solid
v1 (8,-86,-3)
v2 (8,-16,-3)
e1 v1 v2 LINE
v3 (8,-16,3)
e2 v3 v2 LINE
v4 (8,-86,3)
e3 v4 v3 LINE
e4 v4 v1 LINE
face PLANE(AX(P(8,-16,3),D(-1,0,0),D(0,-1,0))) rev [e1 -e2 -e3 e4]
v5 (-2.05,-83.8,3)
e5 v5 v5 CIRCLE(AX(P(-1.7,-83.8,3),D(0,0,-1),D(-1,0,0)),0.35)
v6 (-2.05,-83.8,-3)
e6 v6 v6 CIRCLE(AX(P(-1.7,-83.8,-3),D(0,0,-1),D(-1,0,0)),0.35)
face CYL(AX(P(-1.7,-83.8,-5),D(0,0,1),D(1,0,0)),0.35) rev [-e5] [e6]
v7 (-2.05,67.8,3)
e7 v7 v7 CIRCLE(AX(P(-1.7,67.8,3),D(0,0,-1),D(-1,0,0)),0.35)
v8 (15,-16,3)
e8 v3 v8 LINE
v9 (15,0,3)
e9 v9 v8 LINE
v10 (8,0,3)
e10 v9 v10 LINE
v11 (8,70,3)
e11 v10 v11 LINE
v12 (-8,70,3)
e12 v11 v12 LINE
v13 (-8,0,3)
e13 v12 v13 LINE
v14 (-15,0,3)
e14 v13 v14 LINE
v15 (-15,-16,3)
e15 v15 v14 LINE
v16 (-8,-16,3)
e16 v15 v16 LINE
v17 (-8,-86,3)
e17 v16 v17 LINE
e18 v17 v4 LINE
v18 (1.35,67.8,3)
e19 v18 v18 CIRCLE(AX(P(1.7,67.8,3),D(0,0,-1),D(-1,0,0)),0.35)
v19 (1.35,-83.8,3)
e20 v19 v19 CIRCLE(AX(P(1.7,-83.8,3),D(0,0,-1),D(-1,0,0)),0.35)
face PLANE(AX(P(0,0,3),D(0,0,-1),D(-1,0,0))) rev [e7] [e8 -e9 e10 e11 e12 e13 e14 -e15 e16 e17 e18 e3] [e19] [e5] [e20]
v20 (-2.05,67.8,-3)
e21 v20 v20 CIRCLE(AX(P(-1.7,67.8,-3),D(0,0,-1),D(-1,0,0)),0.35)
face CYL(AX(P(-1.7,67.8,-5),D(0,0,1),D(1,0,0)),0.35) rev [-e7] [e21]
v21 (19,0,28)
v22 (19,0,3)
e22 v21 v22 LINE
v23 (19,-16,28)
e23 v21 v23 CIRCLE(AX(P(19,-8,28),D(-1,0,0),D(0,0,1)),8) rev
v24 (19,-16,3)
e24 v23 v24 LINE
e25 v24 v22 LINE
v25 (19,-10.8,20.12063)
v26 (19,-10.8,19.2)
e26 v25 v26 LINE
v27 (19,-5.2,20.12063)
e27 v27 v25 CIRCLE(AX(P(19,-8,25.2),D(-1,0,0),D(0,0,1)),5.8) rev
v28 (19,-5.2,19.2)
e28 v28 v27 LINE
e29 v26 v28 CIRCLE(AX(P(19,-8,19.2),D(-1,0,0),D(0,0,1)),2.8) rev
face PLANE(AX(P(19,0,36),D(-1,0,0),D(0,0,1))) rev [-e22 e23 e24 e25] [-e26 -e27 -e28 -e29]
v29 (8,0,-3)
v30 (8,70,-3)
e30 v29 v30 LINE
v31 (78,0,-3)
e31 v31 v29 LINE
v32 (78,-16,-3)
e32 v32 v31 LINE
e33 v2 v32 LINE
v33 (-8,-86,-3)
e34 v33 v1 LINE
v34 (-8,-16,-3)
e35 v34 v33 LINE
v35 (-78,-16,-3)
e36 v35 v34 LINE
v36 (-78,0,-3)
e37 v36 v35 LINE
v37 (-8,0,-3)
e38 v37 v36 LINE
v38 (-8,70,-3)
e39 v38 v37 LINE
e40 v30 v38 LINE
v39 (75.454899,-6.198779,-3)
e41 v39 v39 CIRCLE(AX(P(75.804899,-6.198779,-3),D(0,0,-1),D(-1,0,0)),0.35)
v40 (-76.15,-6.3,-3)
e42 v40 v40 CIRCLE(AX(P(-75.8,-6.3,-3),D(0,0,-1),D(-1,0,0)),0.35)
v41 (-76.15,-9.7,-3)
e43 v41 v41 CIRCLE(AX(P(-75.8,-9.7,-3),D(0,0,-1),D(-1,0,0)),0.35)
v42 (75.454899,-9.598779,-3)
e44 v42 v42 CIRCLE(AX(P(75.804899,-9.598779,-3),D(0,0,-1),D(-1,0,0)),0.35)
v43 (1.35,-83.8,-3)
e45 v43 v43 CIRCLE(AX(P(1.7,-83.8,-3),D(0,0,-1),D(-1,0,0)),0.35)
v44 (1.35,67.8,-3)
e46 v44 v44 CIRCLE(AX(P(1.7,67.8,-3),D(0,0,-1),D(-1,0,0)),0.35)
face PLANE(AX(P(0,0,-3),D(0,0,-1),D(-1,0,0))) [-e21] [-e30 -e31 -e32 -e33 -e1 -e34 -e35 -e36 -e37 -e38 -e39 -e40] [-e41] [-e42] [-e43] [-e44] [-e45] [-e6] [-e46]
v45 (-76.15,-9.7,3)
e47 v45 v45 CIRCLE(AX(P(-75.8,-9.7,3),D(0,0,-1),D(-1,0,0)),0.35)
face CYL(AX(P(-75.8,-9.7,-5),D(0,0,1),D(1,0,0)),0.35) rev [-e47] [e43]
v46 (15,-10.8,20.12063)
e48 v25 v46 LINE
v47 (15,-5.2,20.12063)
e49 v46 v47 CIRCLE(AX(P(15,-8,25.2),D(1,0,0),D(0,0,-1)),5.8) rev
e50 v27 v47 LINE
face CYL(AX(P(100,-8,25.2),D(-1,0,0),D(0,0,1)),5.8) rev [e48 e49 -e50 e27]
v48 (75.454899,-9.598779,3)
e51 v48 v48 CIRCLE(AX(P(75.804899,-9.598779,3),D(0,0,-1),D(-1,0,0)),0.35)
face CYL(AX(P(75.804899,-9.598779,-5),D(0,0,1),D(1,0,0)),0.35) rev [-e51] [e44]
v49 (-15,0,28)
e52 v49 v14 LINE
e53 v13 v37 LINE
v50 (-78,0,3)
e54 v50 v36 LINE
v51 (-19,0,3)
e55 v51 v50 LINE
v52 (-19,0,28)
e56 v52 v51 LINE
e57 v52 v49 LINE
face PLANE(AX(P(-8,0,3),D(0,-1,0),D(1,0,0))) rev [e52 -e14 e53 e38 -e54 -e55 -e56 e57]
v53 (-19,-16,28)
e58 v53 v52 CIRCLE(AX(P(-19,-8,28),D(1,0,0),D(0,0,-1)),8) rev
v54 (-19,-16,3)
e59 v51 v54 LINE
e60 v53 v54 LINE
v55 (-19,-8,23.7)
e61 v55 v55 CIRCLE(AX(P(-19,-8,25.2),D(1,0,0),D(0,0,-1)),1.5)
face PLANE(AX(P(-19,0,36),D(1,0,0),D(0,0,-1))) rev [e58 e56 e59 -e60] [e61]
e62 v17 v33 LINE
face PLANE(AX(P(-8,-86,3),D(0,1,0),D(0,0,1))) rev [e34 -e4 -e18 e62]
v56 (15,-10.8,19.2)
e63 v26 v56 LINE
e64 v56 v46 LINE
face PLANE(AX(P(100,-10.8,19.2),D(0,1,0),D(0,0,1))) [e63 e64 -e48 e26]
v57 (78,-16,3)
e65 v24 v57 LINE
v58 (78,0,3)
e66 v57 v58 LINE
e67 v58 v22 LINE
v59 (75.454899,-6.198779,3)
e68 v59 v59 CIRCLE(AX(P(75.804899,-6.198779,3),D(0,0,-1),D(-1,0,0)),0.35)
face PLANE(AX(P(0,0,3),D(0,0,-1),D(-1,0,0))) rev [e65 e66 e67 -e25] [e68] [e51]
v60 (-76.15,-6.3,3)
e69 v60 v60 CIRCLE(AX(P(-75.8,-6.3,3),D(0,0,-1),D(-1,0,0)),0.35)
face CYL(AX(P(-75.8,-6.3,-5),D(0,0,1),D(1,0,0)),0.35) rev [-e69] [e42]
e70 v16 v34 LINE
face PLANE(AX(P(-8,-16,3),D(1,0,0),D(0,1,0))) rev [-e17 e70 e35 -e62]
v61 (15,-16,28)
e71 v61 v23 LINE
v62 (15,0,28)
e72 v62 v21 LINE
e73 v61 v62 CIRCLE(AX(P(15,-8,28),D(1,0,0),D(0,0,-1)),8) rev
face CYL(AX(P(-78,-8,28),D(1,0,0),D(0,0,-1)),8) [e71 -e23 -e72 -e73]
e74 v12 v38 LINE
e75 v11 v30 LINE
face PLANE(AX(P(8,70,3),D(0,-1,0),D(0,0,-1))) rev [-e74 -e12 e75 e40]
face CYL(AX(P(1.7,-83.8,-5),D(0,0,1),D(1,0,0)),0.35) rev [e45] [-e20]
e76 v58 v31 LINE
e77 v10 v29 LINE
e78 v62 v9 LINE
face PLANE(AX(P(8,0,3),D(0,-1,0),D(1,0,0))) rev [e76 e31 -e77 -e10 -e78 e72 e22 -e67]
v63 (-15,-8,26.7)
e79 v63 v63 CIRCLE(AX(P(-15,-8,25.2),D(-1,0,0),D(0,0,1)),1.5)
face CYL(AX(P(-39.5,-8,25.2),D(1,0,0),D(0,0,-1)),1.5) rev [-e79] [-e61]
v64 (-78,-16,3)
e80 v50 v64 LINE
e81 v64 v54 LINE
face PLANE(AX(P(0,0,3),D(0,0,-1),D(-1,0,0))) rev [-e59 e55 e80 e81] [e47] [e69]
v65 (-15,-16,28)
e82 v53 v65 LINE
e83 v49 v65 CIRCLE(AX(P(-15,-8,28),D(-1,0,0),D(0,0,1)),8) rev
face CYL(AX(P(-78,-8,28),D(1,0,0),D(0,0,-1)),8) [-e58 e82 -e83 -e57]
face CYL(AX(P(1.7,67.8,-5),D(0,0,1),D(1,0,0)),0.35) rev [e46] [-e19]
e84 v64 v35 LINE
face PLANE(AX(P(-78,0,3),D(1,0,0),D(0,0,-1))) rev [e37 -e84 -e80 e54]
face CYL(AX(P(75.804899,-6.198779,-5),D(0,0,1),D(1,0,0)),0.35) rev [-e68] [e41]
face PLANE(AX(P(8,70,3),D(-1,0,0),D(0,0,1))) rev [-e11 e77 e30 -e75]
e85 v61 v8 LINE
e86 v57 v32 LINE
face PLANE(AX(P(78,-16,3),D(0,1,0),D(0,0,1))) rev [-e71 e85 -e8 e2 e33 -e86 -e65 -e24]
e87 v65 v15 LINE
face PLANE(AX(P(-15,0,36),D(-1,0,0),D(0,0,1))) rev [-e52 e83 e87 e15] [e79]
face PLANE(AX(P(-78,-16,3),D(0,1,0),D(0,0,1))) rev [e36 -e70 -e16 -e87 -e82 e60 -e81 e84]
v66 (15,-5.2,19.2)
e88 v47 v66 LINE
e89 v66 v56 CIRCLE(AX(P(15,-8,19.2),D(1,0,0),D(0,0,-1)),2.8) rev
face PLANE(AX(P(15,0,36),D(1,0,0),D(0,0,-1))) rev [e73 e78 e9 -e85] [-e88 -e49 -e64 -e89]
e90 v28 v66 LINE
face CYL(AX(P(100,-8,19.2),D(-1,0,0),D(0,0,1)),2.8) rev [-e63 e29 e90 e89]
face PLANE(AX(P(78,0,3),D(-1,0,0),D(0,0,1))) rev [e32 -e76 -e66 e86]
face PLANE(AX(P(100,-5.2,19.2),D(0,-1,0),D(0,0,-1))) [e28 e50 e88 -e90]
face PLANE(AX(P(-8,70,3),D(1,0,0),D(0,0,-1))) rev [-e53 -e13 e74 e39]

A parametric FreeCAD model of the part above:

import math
import FreeCAD as App
import Part
import Sketcher
Q = App.Units.Quantity

doc = App.newDocument("Part")
body = doc.addObject("PartDesign::Body", "Body")

# Sketch on XY plane
sketch1 = body.newObject("Sketcher::SketchObject", "Sketch")
sketch1.AttachmentSupport = (doc.getObject("XY_Plane"), [""])
sketch1.MapMode = "FlatFace"
sketch1.addGeometry([
    Part.LineSegment(App.Vector(8, 70, 0), App.Vector(-8, 70, 0)),  # 0
    Part.LineSegment(App.Vector(-8, 70, 0), App.Vector(-8, 0, 0)),  # 1
    Part.LineSegment(App.Vector(-8, 0, 0), App.Vector(-78, 0, 0)),  # 2
    Part.LineSegment(App.Vector(-78, 0, 0), App.Vector(-78, -16, 0)),  # 3
    Part.LineSegment(App.Vector(-78, -16, 0), App.Vector(-8, -16, 0)),  # 4
    Part.LineSegment(App.Vector(-8, -16, 0), App.Vector(-8, -86, 0)),  # 5
    Part.LineSegment(App.Vector(-8, -86, 0), App.Vector(8, -86, 0)),  # 6
    Part.LineSegment(App.Vector(8, -86, 0), App.Vector(8, -16, 0)),  # 7
    Part.LineSegment(App.Vector(8, -16, 0), App.Vector(78, -16, 0)),  # 8
    Part.LineSegment(App.Vector(78, -16, 0), App.Vector(78, 0, 0)),  # 9
    Part.LineSegment(App.Vector(78, 0, 0), App.Vector(8, 0, 0)),  # 10
    Part.LineSegment(App.Vector(8, 0, 0), App.Vector(8, 70, 0)),  # 11
], False)
sketch1.addConstraint([
    Sketcher.Constraint("Coincident", 0, 2, 1, 1),
    Sketcher.Constraint("Coincident", 1, 2, 2, 1),
    Sketcher.Constraint("Coincident", 2, 2, 3, 1),
    Sketcher.Constraint("Coincident", 3, 2, 4, 1),
    Sketcher.Constraint("Coincident", 4, 2, 5, 1),
    Sketcher.Constraint("Coincident", 5, 2, 6, 1),
    Sketcher.Constraint("Coincident", 6, 2, 7, 1),
    Sketcher.Constraint("Coincident", 7, 2, 8, 1),
    Sketcher.Constraint("Coincident", 8, 2, 9, 1),
    Sketcher.Constraint("Coincident", 9, 2, 10, 1),
    Sketcher.Constraint("Coincident", 10, 2, 11, 1),
    Sketcher.Constraint("Coincident", 11, 2, 0, 1),
    Sketcher.Constraint("Horizontal", 0),
    Sketcher.Constraint("Vertical", 1),
    Sketcher.Constraint("Horizontal", 2),
    Sketcher.Constraint("Vertical", 3),
    Sketcher.Constraint("Horizontal", 4),
    Sketcher.Constraint("Vertical", 5),
    Sketcher.Constraint("Horizontal", 6),
    Sketcher.Constraint("Vertical", 7),
    Sketcher.Constraint("Horizontal", 8),
    Sketcher.Constraint("Vertical", 9),
    Sketcher.Constraint("Horizontal", 10),
    Sketcher.Constraint("Vertical", 11),
    Sketcher.Constraint("Symmetric", 2, 2, 9, 2, -1, 1),
    Sketcher.Constraint("Symmetric", 4, 2, 7, 2, -2),
    Sketcher.Constraint("Symmetric", 1, 2, 10, 2, -2),
    Sketcher.Constraint("Vertical", 1, 2, 4, 2),
    Sketcher.Constraint("Equal", 10, 1),
    Sketcher.Constraint("Equal", 6, 3),
    Sketcher.Constraint("Equal", 1, 5),
    Sketcher.Constraint("DistanceX", 0, 2, 0, 1, Q("16 mm")),
    Sketcher.Constraint("DistanceX", 2, 2, 2, 1, Q("70 mm")),
])
pad1 = body.newObject("PartDesign::Pad", "Pad")
pad1.Profile = sketch1
pad1.Length = 6
pad1.Midplane = True

# Sketch on XY plane
sketch2 = body.newObject("Sketcher::SketchObject", "Sketch001")
sketch2.AttachmentSupport = (doc.getObject("XY_Plane"), [""])
sketch2.MapMode = "FlatFace"
sketch2.addGeometry([
    Part.Circle(App.Vector(-75.8, -6.3, 0), App.Vector(0, 0, 1), 0.35),  # 0
    Part.Circle(App.Vector(-75.8, -9.7, 0), App.Vector(0, 0, 1), 0.35),  # 1
    Part.Circle(App.Vector(-1.7, 67.8, 0), App.Vector(0, 0, 1), 0.35),  # 2
    Part.Circle(App.Vector(1.7, 67.8, 0), App.Vector(0, 0, 1), 0.35),  # 3
    Part.Circle(App.Vector(75.8, -6.2, 0), App.Vector(0, 0, 1), 0.35),  # 4
    Part.Circle(App.Vector(75.8, -9.6, 0), App.Vector(0, 0, 1), 0.35),  # 5
    Part.Circle(App.Vector(-75.8, 141.8, 0), App.Vector(0, 0, 1), 0.35),  # 6
    Part.Circle(App.Vector(-75.8, 145.2, 0), App.Vector(0, 0, 1), 0.35),  # 7
    Part.Circle(App.Vector(74, 143.6, 0), App.Vector(0, 0, 1), 0.35),  # 8
    Part.Circle(App.Vector(77.4, 143.6, 0), App.Vector(0, 0, 1), 0.35),  # 9
    Part.Circle(App.Vector(-1.7, -83.8, 0), App.Vector(0, 0, 1), 0.35),  # 10
    Part.Circle(App.Vector(1.7, -83.8, 0), App.Vector(0, 0, 1), 0.35),  # 11
], False)
sketch2.addConstraint([
    Sketcher.Constraint("Equal", 0, 1),
    Sketcher.Constraint("Equal", 1, 2),
    Sketcher.Constraint("Equal", 2, 3),
    Sketcher.Constraint("Equal", 3, 4),
    Sketcher.Constraint("Equal", 4, 5),
    Sketcher.Constraint("Equal", 5, 6),
    Sketcher.Constraint("Equal", 6, 7),
    Sketcher.Constraint("Equal", 7, 8),
    Sketcher.Constraint("Equal", 8, 9),
    Sketcher.Constraint("Equal", 9, 10),
    Sketcher.Constraint("Equal", 10, 11),
    Sketcher.Constraint("Symmetric", 2, 3, 3, 3, -2),
    Sketcher.Constraint("Symmetric", 10, 3, 11, 3, -2),
    Sketcher.Constraint("Horizontal", 8, 3, 9, 3),
    Sketcher.Constraint("Vertical", 0, 3, 1, 3),
    Sketcher.Constraint("Vertical", 4, 3, 5, 3),
    Sketcher.Constraint("Vertical", 6, 3, 7, 3),
    Sketcher.Constraint("Vertical", 2, 3, 10, 3),
    Sketcher.Constraint("Diameter", 0, Q("0.7 mm")),
    Sketcher.Constraint("DistanceX", 0, 3, -1, 1, Q("75.8 mm")),
    Sketcher.Constraint("DistanceY", 0, 3, -1, 1, Q("6.3 mm")),
    Sketcher.Constraint("DistanceY", 1, 3, -1, 1, Q("9.7 mm")),
    Sketcher.Constraint("DistanceX", 2, 3, -1, 1, Q("1.7 mm")),
    Sketcher.Constraint("DistanceY", -1, 1, 2, 3, Q("67.8 mm")),
    Sketcher.Constraint("DistanceY", 10, 3, -1, 1, Q("83.8 mm")),
    Sketcher.Constraint("DistanceY", 5, 3, 4, 3, Q("3.4 mm")),
    Sketcher.Constraint("DistanceY", 6, 3, 7, 3, Q("3.4 mm")),
    Sketcher.Constraint("DistanceX", 8, 3, 9, 3, Q("3.4 mm")),
    Sketcher.Constraint("DistanceX", -1, 1, 4, 3, Q("75.804899 mm")),
    Sketcher.Constraint("DistanceX", 6, 3, -1, 1, Q("75.804899 mm")),
    Sketcher.Constraint("DistanceY", -1, 1, 8, 3, Q("143.604899 mm")),
    Sketcher.Constraint("DistanceY", 4, 3, -1, 1, Q("6.198779 mm")),
    Sketcher.Constraint("DistanceY", -1, 1, 6, 3, Q("141.798779 mm")),
    Sketcher.Constraint("DistanceX", -1, 1, 8, 3, Q("73.998779 mm")),
])
pocket1 = body.newObject("PartDesign::Pocket", "Pocket")
pocket1.Profile = sketch2
pocket1.Length = 10
pocket1.Midplane = True

# Sketch on XY plane
sketch3 = body.newObject("Sketcher::SketchObject", "Sketch002")
sketch3.AttachmentSupport = (doc.getObject("XY_Plane"), [""])
sketch3.MapMode = "FlatFace"
sketch3.addGeometry([
    Part.LineSegment(App.Vector(-19, 0, 0), App.Vector(-19, -16, 0)),  # 0
    Part.LineSegment(App.Vector(-19, -16, 0), App.Vector(-15, -16, 0)),  # 1
    Part.LineSegment(App.Vector(-15, -16, 0), App.Vector(-15, 0, 0)),  # 2
    Part.LineSegment(App.Vector(-15, 0, 0), App.Vector(-19, 0, 0)),  # 3
    Part.LineSegment(App.Vector(15, 0, 0), App.Vector(15, -16, 0)),  # 4
    Part.LineSegment(App.Vector(15, -16, 0), App.Vector(19, -16, 0)),  # 5
    Part.LineSegment(App.Vector(19, -16, 0), App.Vector(19, 0, 0)),  # 6
    Part.LineSegment(App.Vector(19, 0, 0), App.Vector(15, 0, 0)),  # 7
], False)
sketch3.addConstraint([
    Sketcher.Constraint("Coincident", 0, 2, 1, 1),
    Sketcher.Constraint("Coincident", 1, 2, 2, 1),
    Sketcher.Constraint("Coincident", 2, 2, 3, 1),
    Sketcher.Constraint("Coincident", 3, 2, 0, 1),
    Sketcher.Constraint("Coincident", 4, 2, 5, 1),
    Sketcher.Constraint("Coincident", 5, 2, 6, 1),
    Sketcher.Constraint("Coincident", 6, 2, 7, 1),
    Sketcher.Constraint("Coincident", 7, 2, 4, 1),
    Sketcher.Constraint("Vertical", 0),
    Sketcher.Constraint("Horizontal", 1),
    Sketcher.Constraint("Vertical", 2),
    Sketcher.Constraint("Horizontal", 3),
    Sketcher.Constraint("Vertical", 4),
    Sketcher.Constraint("Horizontal", 5),
    Sketcher.Constraint("Vertical", 6),
    Sketcher.Constraint("Horizontal", 7),
    Sketcher.Constraint("Symmetric", 3, 2, 6, 2, -1, 1),
    Sketcher.Constraint("Symmetric", 1, 2, 4, 2, -2),
    Sketcher.Constraint("PointOnObject", 2, 2, -1),
    Sketcher.Constraint("DistanceX", 1, 1, 1, 2, Q("4 mm")),
    Sketcher.Constraint("DistanceY", 0, 2, 0, 1, Q("16 mm")),
    Sketcher.Constraint("DistanceX", 0, 2, -1, 1, Q("19 mm")),
])
pad2 = body.newObject("PartDesign::Pad", "Pad001")
pad2.Profile = sketch3
pad2.Length = 36

# Sketch on YZ plane
sketch4 = body.newObject("Sketcher::SketchObject", "Sketch003")
sketch4.AttachmentSupport = (doc.getObject("YZ_Plane"), [""])
sketch4.MapMode = "FlatFace"
sketch4.addGeometry([
    Part.LineSegment(App.Vector(0, 40, 0), App.Vector(-16, 40, 0)),
    Part.LineSegment(App.Vector(-16, 40, 0), App.Vector(-16, 28, 0)),
    Part.ArcOfCircle(Part.Circle(App.Vector(-8, 28, 0), App.Vector(0, 0, 1), 8), math.radians(0), math.radians(180)),
    Part.LineSegment(App.Vector(0, 28, 0), App.Vector(0, 40, 0)),
], False)
sketch4.addConstraint([
    Sketcher.Constraint("Coincident", 0, 2, 1, 1),
    Sketcher.Constraint("Tangent", 1, 2, 2, 2),
    Sketcher.Constraint("Tangent", 2, 1, 3, 1),
    Sketcher.Constraint("Coincident", 3, 2, 0, 1),
    Sketcher.Constraint("Horizontal", 0),
    Sketcher.Constraint("Vertical", 1),
    Sketcher.Constraint("Vertical", 3),
    Sketcher.Constraint("PointOnObject", 2, 1, -2),
    Sketcher.Constraint("Radius", 2, Q("8 mm")),
    Sketcher.Constraint("DistanceY", -1, 1, 2, 3, Q("28 mm")),
    Sketcher.Constraint("DistanceY", 1, 2, 1, 1, Q("11.977522 mm")),
])
pocket2 = body.newObject("PartDesign::Pocket", "Pocket001")
pocket2.Profile = sketch4
pocket2.Type = "ThroughAll"
pocket2.Midplane = True

# Sketch on YZ plane
sketch5 = body.newObject("Sketcher::SketchObject", "Sketch004")
sketch5.AttachmentSupport = (doc.getObject("YZ_Plane"), [""])
sketch5.MapMode = "FlatFace"
sketch5.addGeometry([
    Part.LineSegment(App.Vector(-5.2, 19.2, 0), App.Vector(-5.2, 20.1, 0)),
    Part.ArcOfCircle(Part.Circle(App.Vector(-8, 25.2, 0), App.Vector(0, 0, 1), 5.8), math.radians(-61), math.radians(241)),
    Part.LineSegment(App.Vector(-10.8, 20.1, 0), App.Vector(-10.8, 19.2, 0)),
    Part.ArcOfCircle(Part.Circle(App.Vector(-8, 19.2, 0), App.Vector(0, 0, 1), 2.8), math.radians(180), math.radians(360)),
], False)
sketch5.addConstraint([
    Sketcher.Constraint("Coincident", 0, 2, 1, 1),
    Sketcher.Constraint("Coincident", 1, 2, 2, 1),
    Sketcher.Constraint("Tangent", 2, 2, 3, 1),
    Sketcher.Constraint("Tangent", 3, 2, 0, 1),
    Sketcher.Constraint("Vertical", 0),
    Sketcher.Constraint("Vertical", 2),
    Sketcher.Constraint("Horizontal", 0, 2, 1, 2),
    Sketcher.Constraint("Radius", 1, Q("5.8 mm")),
    Sketcher.Constraint("Radius", 3, Q("2.8 mm")),
    Sketcher.Constraint("DistanceX", 1, 3, -1, 1, Q("8 mm")),
    Sketcher.Constraint("DistanceY", 3, 3, 1, 3, Q("6 mm")),
    Sketcher.Constraint("DistanceY", -1, 1, 1, 3, Q("25.2 mm")),
])
pocket3 = body.newObject("PartDesign::Pocket", "Pocket002")
pocket3.Profile = sketch5
pocket3.Length = 100
pocket3.Reversed = True

# Sketch on YZ plane
sketch6 = body.newObject("Sketcher::SketchObject", "Sketch005")
sketch6.AttachmentSupport = (doc.getObject("YZ_Plane"), [""])
sketch6.MapMode = "FlatFace"
sketch6.AttachmentOffset = App.Placement(App.Vector(0, 0, -9.5), App.Rotation())
sketch6.addGeometry(Part.Circle(App.Vector(-8, 25.2, 0), App.Vector(0, 0, 1), 1.5), False)
sketch6.addConstraint([
    Sketcher.Constraint("Diameter", 0, Q("3 mm")),
    Sketcher.Constraint("DistanceX", 0, 3, -1, 1, Q("8 mm")),
    Sketcher.Constraint("DistanceY", -1, 1, 0, 3, Q("25.2 mm")),
])
pocket4 = body.newObject("PartDesign::Pocket", "Pocket003")
pocket4.Profile = sketch6
pocket4.Length = 30

doc.recompute()
